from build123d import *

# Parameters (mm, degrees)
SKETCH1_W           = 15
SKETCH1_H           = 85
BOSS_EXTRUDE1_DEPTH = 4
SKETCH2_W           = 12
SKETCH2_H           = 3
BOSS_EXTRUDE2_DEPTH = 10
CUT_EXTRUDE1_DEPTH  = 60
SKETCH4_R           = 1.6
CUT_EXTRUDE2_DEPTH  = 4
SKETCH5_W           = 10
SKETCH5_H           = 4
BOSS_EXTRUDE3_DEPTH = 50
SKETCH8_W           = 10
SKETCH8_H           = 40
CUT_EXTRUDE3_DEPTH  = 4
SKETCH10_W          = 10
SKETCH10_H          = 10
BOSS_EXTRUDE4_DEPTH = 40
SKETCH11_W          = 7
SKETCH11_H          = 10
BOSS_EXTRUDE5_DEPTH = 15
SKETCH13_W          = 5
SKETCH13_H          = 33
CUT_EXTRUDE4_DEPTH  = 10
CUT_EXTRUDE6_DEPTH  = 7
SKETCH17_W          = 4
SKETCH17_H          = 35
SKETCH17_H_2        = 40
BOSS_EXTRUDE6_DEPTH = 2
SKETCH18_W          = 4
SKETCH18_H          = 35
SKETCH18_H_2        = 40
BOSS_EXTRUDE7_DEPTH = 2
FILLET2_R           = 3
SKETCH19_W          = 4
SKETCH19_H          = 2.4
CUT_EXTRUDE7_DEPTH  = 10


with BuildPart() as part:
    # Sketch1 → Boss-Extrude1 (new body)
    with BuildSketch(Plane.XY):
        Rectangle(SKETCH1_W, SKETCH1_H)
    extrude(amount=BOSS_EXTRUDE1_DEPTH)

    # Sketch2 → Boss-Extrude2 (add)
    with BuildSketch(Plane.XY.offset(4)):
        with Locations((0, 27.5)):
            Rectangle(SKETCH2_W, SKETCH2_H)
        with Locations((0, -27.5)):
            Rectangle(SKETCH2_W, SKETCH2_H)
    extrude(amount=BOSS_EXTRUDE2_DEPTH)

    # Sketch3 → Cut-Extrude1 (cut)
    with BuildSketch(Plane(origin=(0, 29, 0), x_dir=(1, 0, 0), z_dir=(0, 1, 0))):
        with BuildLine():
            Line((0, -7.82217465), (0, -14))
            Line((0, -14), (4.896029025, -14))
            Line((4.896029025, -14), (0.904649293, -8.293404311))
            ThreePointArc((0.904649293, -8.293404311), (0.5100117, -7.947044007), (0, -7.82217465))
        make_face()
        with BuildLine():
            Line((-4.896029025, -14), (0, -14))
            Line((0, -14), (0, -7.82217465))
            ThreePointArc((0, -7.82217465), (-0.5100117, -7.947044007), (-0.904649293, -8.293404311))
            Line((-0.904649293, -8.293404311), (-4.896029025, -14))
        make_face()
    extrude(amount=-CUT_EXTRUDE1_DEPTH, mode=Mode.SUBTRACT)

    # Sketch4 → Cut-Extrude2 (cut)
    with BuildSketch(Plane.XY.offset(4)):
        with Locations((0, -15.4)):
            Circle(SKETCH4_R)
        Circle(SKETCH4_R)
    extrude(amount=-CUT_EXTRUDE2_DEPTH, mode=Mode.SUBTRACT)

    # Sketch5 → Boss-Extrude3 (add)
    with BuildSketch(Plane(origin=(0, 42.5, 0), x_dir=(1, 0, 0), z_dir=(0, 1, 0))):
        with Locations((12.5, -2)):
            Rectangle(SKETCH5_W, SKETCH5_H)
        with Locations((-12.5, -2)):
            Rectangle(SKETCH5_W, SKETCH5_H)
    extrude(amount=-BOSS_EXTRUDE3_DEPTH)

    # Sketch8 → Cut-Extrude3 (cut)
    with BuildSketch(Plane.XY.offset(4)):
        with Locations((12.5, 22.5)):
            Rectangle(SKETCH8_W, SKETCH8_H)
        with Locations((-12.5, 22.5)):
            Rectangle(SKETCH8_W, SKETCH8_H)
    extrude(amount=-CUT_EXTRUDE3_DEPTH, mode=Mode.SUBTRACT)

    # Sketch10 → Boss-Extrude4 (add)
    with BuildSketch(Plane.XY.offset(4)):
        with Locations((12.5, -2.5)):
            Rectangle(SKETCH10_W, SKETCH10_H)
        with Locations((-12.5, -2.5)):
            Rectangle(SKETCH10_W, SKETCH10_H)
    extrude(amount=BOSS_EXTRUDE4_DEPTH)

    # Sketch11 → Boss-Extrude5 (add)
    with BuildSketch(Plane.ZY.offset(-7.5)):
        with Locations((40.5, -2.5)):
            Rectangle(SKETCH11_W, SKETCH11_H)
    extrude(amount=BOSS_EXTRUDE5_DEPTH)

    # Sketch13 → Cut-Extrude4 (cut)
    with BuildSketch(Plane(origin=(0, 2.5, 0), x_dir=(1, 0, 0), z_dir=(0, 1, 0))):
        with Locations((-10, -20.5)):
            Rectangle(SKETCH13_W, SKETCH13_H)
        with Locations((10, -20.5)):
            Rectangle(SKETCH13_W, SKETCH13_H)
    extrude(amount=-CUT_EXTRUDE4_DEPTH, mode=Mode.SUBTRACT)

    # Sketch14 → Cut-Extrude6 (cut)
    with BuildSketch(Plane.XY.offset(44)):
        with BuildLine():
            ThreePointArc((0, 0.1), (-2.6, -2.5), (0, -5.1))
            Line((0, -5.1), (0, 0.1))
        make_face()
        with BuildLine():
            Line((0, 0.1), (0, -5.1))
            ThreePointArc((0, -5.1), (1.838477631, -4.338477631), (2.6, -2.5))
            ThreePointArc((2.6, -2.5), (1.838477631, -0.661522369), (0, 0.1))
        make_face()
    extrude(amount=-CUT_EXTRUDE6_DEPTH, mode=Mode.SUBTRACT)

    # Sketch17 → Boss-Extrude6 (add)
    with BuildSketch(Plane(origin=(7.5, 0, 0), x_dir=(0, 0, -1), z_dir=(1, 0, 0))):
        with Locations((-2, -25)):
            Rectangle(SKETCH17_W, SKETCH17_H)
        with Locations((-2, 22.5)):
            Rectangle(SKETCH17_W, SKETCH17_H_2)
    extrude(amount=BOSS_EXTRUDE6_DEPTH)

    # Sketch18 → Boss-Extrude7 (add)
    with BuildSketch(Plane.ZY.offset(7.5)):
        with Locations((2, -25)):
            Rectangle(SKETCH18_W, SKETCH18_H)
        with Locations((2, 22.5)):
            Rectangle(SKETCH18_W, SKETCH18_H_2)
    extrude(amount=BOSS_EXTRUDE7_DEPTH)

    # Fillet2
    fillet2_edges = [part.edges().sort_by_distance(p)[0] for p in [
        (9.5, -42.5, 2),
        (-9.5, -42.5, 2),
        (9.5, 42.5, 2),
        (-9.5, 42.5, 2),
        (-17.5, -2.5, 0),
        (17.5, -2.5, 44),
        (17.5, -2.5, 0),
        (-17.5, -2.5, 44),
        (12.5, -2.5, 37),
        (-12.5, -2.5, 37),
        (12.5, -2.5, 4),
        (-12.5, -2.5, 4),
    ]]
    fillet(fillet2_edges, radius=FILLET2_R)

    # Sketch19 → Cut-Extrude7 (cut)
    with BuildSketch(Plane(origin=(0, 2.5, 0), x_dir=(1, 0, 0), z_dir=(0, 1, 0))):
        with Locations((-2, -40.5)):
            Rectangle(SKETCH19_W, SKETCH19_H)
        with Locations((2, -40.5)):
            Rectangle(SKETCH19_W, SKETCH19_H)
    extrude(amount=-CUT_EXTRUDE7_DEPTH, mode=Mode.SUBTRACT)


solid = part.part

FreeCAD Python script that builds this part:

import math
import FreeCAD as App
import Part
import Sketcher
from FreeCAD import Vector


def edges_at(feature, points):
    """Names of the edges that pass closest to the given points."""
    edges = feature.Shape.Edges
    near = lambda p: min(range(len(edges)), key=lambda i: edges[i].distToShape(Part.Vertex(*p))[0])
    return sorted({f"Edge{near(p) + 1}" for p in points})


def add_polygon(sketch, points):
    """Adds a closed chain of lines whose ends are joined by coincident constraints."""
    first, n = sketch.GeometryCount, len(points)
    for a, b in zip(points, points[1:] + points[:1]):
        sketch.addGeometry(Part.LineSegment(App.Vector(*a, 0), App.Vector(*b, 0)), False)
    for i in range(n):
        sketch.addConstraint(Sketcher.Constraint("Coincident", first + i, 2, first + (i + 1) % n, 1))

doc = App.newDocument("Part")
body = doc.addObject("PartDesign::Body", "Body")

# Sketch on XY plane
sketch1 = doc.addObject("Sketcher::SketchObject", "Sketch")
body.addObject(sketch1)
sketch1.AttachmentSupport = (doc.XY_Plane, [""])
sketch1.MapMode = "FlatFace"
add_polygon(sketch1, [(-8, 42), (-8, -42), (8, -42), (8, 42)])  # lines 0-3
sketch1.addConstraint([
    Sketcher.Constraint("Vertical", 0),
    Sketcher.Constraint("Horizontal", 1),
    Sketcher.Constraint("Vertical", 2),
    Sketcher.Constraint("Horizontal", 3),
    Sketcher.Constraint("Symmetric", 0, 2, 2, 2, -1, 1),
    Sketcher.Constraint("DistanceX", 1, 1, 1, 2, 15.0),
    Sketcher.Constraint("DistanceY", 0, 2, 0, 1, 85.0),
])
pad1 = doc.addObject("PartDesign::Pad", "Pad")
body.addObject(pad1)
pad1.Profile = sketch1
pad1.Length = 4

# Sketch on XY plane
sketch2 = doc.addObject("Sketcher::SketchObject", "Sketch001")
body.addObject(sketch2)
sketch2.AttachmentSupport = (doc.XY_Plane, [""])
sketch2.MapMode = "FlatFace"
sketch2.AttachmentOffset = App.Placement(Vector(0, 0, 4), App.Rotation())
add_polygon(sketch2, [(-6, 29), (-6, 26), (6, 26), (6, 29)])  # lines 0-3
add_polygon(sketch2, [(-6, -26), (-6, -29), (6, -29), (6, -26)])  # lines 4-7
sketch2.addConstraint([
    Sketcher.Constraint("Vertical", 0),
    Sketcher.Constraint("Horizontal", 1),
    Sketcher.Constraint("Vertical", 2),
    Sketcher.Constraint("Horizontal", 3),
    Sketcher.Constraint("Vertical", 4),
    Sketcher.Constraint("Horizontal", 5),
    Sketcher.Constraint("Vertical", 6),
    Sketcher.Constraint("Horizontal", 7),
    Sketcher.Constraint("Symmetric", 2, 2, 4, 2, -1, 1),
    Sketcher.Constraint("Symmetric", 0, 2, 6, 2, -1, 1),
    Sketcher.Constraint("Vertical", 3, 2, 4, 2),
    Sketcher.Constraint("DistanceX", 1, 1, 1, 2, 12.0),
    Sketcher.Constraint("DistanceY", 0, 2, 0, 1, 3.0),
    Sketcher.Constraint("DistanceY", -1, 1, 0, 2, 26.0),
])
pad2 = doc.addObject("PartDesign::Pad", "Pad001")
body.addObject(pad2)
pad2.Profile = sketch2
pad2.Length = 10

# Sketch on XZ plane
sketch3 = doc.addObject("Sketcher::SketchObject", "Sketch002")
body.addObject(sketch3)
sketch3.AttachmentSupport = (doc.XZ_Plane, [""])
sketch3.MapMode = "FlatFace"
sketch3.AttachmentOffset = App.Placement(Vector(0, 0, -29), App.Rotation())
sketch3.addGeometry([
    Part.LineSegment(Vector(4.9, 14, 0), Vector(0.9, 8.3, 0)),  # 0
    Part.ArcOfCircle(Part.Circle(Vector(0, 8.9, 0), Vector(0, 0, 1), 1.1), math.radians(-90), math.radians(-35)),  # 1
    Part.ArcOfCircle(Part.Circle(Vector(0, 8.9, 0), Vector(0, 0, 1), 1.1), math.radians(-145), math.radians(-90)),  # 2
    Part.LineSegment(Vector(-0.9, 8.3, 0), Vector(-4.9, 14, 0)),  # 3
    Part.LineSegment(Vector(-4.9, 14, 0), Vector(4.9, 14, 0)),  # 4
], False)
sketch3.addConstraint([
    Sketcher.Constraint("Tangent", 0, 2, 1, 2),
    Sketcher.Constraint("Tangent", 1, 1, 2, 2),
    Sketcher.Constraint("Tangent", 2, 1, 3, 1),
    Sketcher.Constraint("Coincident", 3, 2, 4, 1),
    Sketcher.Constraint("Coincident", 4, 2, 0, 1),
    Sketcher.Constraint("Horizontal", 4),
    Sketcher.Constraint("Equal", 1, 2),
    Sketcher.Constraint("Symmetric", 0, 2, 2, 1, -2),
    Sketcher.Constraint("PointOnObject", 1, 1, -2),
    Sketcher.Constraint("DistanceY", -1, 1, 3, 2, 14.0),
    Sketcher.Constraint("Radius", 1, 1.103971),
    Sketcher.Constraint("DistanceX", 4, 1, 4, 2, 9.792058),
    Sketcher.Constraint("DistanceX", 2, 1, 0, 2, 1.809299),
])
pocket1 = doc.addObject("PartDesign::Pocket", "Pocket")
body.addObject(pocket1)
pocket1.Profile = sketch3
pocket1.Length = 60
pocket1.Reversed = True

# Sketch on XY plane
sketch4 = doc.addObject("Sketcher::SketchObject", "Sketch003")
body.addObject(sketch4)
sketch4.AttachmentSupport = (doc.XY_Plane, [""])
sketch4.MapMode = "FlatFace"
sketch4.AttachmentOffset = App.Placement(Vector(0, 0, 4), App.Rotation())
sketch4.addGeometry([
    Part.Circle(Vector(0, -15.4, 0), Vector(0, 0, 1), 1.6),
    Part.Circle(Vector(0, 0, 0), Vector(0, 0, 1), 1.6),
], False)
sketch4.addConstraint([
    Sketcher.Constraint("Coincident", 1, 3, -1, 1),
    Sketcher.Constraint("Equal", 0, 1),
    Sketcher.Constraint("PointOnObject", 0, 3, -2),
    Sketcher.Constraint("Diameter", 0, 3.2),
    Sketcher.Constraint("DistanceY", 0, 3, -1, 1, 15.4),
])
pocket2 = doc.addObject("PartDesign::Pocket", "Pocket001")
body.addObject(pocket2)
pocket2.Profile = sketch4
pocket2.Length = 4

# Sketch on XZ plane
sketch5 = doc.addObject("Sketcher::SketchObject", "Sketch004")
body.addObject(sketch5)
sketch5.AttachmentSupport = (doc.XZ_Plane, [""])
sketch5.MapMode = "FlatFace"
sketch5.AttachmentOffset = App.Placement(Vector(0, 0, -42.5), App.Rotation())
add_polygon(sketch5, [(7.5, 0), (7.5, 4), (17.5, 4), (17.5, 0)])  # lines 0-3
add_polygon(sketch5, [(-17.5, 0), (-17.5, 4), (-7.5, 4), (-7.5, 0)])  # lines 4-7
sketch5.addConstraint([
    Sketcher.Constraint("Vertical", 0),
    Sketcher.Constraint("Horizontal", 1),
    Sketcher.Constraint("Vertical", 2),
    Sketcher.Constraint("Horizontal", 3),
    Sketcher.Constraint("Vertical", 4),
    Sketcher.Constraint("Horizontal", 5),
    Sketcher.Constraint("Vertical", 6),
    Sketcher.Constraint("Horizontal", 7),
    Sketcher.Constraint("Symmetric", 3, 2, 6, 2, -1, 1),
    Sketcher.Constraint("Symmetric", 1, 2, 4, 2, -2),
    Sketcher.Constraint("PointOnObject", 2, 2, -1),
    Sketcher.Constraint("DistanceX", 1, 1, 1, 2, 10.0),
    Sketcher.Constraint("DistanceY", 0, 1, 0, 2, 4.0),
    Sketcher.Constraint("DistanceX", 4, 2, 0, 2, 25.0),
])
pad3 = doc.addObject("PartDesign::Pad", "Pad002")
body.addObject(pad3)
pad3.Profile = sketch5
pad3.Length = 50

# Sketch on XY plane
sketch6 = doc.addObject("Sketcher::SketchObject", "Sketch005")
body.addObject(sketch6)
sketch6.AttachmentSupport = (doc.XY_Plane, [""])
sketch6.MapMode = "FlatFace"
sketch6.AttachmentOffset = App.Placement(Vector(0, 0, 4), App.Rotation())
add_polygon(sketch6, [(8, 42), (8, 2), (18, 2), (18, 42)])  # lines 0-3
add_polygon(sketch6, [(-18, 42), (-18, 2), (-8, 2), (-8, 42)])  # lines 4-7
sketch6.addConstraint([
    Sketcher.Constraint("Vertical", 0),
    Sketcher.Constraint("Horizontal", 1),
    Sketcher.Constraint("Vertical", 2),
    Sketcher.Constraint("Horizontal", 3),
    Sketcher.Constraint("Vertical", 4),
    Sketcher.Constraint("Horizontal", 5),
    Sketcher.Constraint("Vertical", 6),
    Sketcher.Constraint("Horizontal", 7),
    Sketcher.Constraint("Symmetric", 1, 2, 4, 2, -2),
    Sketcher.Constraint("Symmetric", 3, 2, 6, 2, -2),
    Sketcher.Constraint("DistanceX", 1, 1, 1, 2, 10.0),
    Sketcher.Constraint("DistanceY", 0, 2, 0, 1, 40.0),
    Sketcher.Constraint("DistanceX", 4, 2, 0, 2, 25.0),
    Sketcher.Constraint("DistanceY", -1, 1, 0, 2, 2.5),
])
pocket3 = doc.addObject("PartDesign::Pocket", "Pocket002")
body.addObject(pocket3)
pocket3.Profile = sketch6
pocket3.Length = 4

# Sketch on XY plane
sketch7 = doc.addObject("Sketcher::SketchObject", "Sketch006")
body.addObject(sketch7)
sketch7.AttachmentSupport = (doc.XY_Plane, [""])
sketch7.MapMode = "FlatFace"
sketch7.AttachmentOffset = App.Placement(Vector(0, 0, 4), App.Rotation())
add_polygon(sketch7, [(8, 2), (8, -8), (18, -8), (18, 2)])  # lines 0-3
add_polygon(sketch7, [(-18, 2), (-18, -8), (-8, -8), (-8, 2)])  # lines 4-7
sketch7.addConstraint([
    Sketcher.Constraint("Vertical", 0),
    Sketcher.Constraint("Horizontal", 1),
    Sketcher.Constraint("Vertical", 2),
    Sketcher.Constraint("Horizontal", 3),
    Sketcher.Constraint("Vertical", 4),
    Sketcher.Constraint("Horizontal", 5),
    Sketcher.Constraint("Vertical", 6),
    Sketcher.Constraint("Horizontal", 7),
    Sketcher.Constraint("Symmetric", 1, 2, 4, 2, -2),
    Sketcher.Constraint("Symmetric", 3, 2, 6, 2, -2),
    Sketcher.Constraint("Equal", 7, 0),
    Sketcher.Constraint("DistanceX", 1, 1, 1, 2, 10.0),
    Sketcher.Constraint("DistanceX", 4, 2, 0, 2, 25.0),
    Sketcher.Constraint("DistanceY", 0, 2, -1, 1, 7.5),
])
pad4 = doc.addObject("PartDesign::Pad", "Pad003")
body.addObject(pad4)
pad4.Profile = sketch7
pad4.Length = 40

# Sketch on YZ plane
sketch8 = doc.addObject("Sketcher::SketchObject", "Sketch007")
body.addObject(sketch8)
sketch8.AttachmentSupport = (doc.YZ_Plane, [""])
sketch8.MapMode = "FlatFace"
sketch8.AttachmentOffset = App.Placement(Vector(0, 0, 7.5), App.Rotation())
add_polygon(sketch8, [(2, 37), (-8, 37), (-8, 44), (2, 44)])  # lines 0-3
sketch8.addConstraint([
    Sketcher.Constraint("Horizontal", 0),
    Sketcher.Constraint("Vertical", 1),
    Sketcher.Constraint("Horizontal", 2),
    Sketcher.Constraint("Vertical", 3),
    Sketcher.Constraint("DistanceX", 0, 2, 0, 1, 10.0),
    Sketcher.Constraint("DistanceY", 1, 1, 1, 2, 7.0),
    Sketcher.Constraint("DistanceY", -1, 1, 0, 2, 37.0),
    Sketcher.Constraint("DistanceX", 0, 2, -1, 1, 7.5),
])
pad5 = doc.addObject("PartDesign::Pad", "Pad004")
body.addObject(pad5)
pad5.Profile = sketch8
pad5.Length = 15
pad5.Reversed = True

# Sketch on XZ plane
sketch9 = doc.addObject("Sketcher::SketchObject", "Sketch008")
body.addObject(sketch9)
sketch9.AttachmentSupport = (doc.XZ_Plane, [""])
sketch9.MapMode = "FlatFace"
sketch9.AttachmentOffset = App.Placement(Vector(0, 0, -2.5), App.Rotation())
add_polygon(sketch9, [(-12, 4), (-12, 37), (-8, 37), (-8, 4)])  # lines 0-3
add_polygon(sketch9, [(8, 4), (8, 37), (12, 37), (12, 4)])  # lines 4-7
sketch9.addConstraint([
    Sketcher.Constraint("Vertical", 0),
    Sketcher.Constraint("Horizontal", 1),
    Sketcher.Constraint("Vertical", 2),
    Sketcher.Constraint("Horizontal", 3),
    Sketcher.Constraint("Vertical", 4),
    Sketcher.Constraint("Horizontal", 5),
    Sketcher.Constraint("Vertical", 6),
    Sketcher.Constraint("Horizontal", 7),
    Sketcher.Constraint("Symmetric", 1, 2, 4, 2, -2),
    Sketcher.Constraint("Symmetric", 3, 2, 6, 2, -2),
    Sketcher.Constraint("DistanceX", 1, 1, 1, 2, 5.0),
    Sketcher.Constraint("DistanceY", 0, 1, 0, 2, 33.0),
    Sketcher.Constraint("DistanceY", -1, 1, 0, 2, 37.0),
    Sketcher.Constraint("DistanceX", 1, 2, 4, 2, 15.0),
])
pocket4 = doc.addObject("PartDesign::Pocket", "Pocket003")
body.addObject(pocket4)
pocket4.Profile = sketch9
pocket4.Length = 10
pocket4.Reversed = True

# Sketch on XY plane
sketch10 = doc.addObject("Sketcher::SketchObject", "Sketch009")
body.addObject(sketch10)
sketch10.AttachmentSupport = (doc.XY_Plane, [""])
sketch10.MapMode = "FlatFace"
sketch10.AttachmentOffset = App.Placement(Vector(0, 0, 44), App.Rotation())
sketch10.addGeometry([
    Part.ArcOfCircle(Part.Circle(Vector(0, -2.5, 0), Vector(0, 0, 1), 2.6), math.radians(90), math.radians(270)),
    Part.ArcOfCircle(Part.Circle(Vector(0, -2.5, 0), Vector(0, 0, 1), 2.6), math.radians(-90), math.radians(0)),
    Part.ArcOfCircle(Part.Circle(Vector(0, -2.5, 0), Vector(0, 0, 1), 2.6), math.radians(0), math.radians(90)),
], False)
sketch10.addConstraint([
    Sketcher.Constraint("Tangent", 0, 2, 1, 1),
    Sketcher.Constraint("Tangent", 1, 2, 2, 1),
    Sketcher.Constraint("Tangent", 2, 2, 0, 1),
    Sketcher.Constraint("PointOnObject", 0, 3, -2),
    Sketcher.Constraint("PointOnObject", 0, 2, -2),
    Sketcher.Constraint("PointOnObject", 2, 2, -2),
    Sketcher.Constraint("Horizontal", 2, 3, 1, 2),
    Sketcher.Constraint("Radius", 0, 2.6),
    Sketcher.Constraint("DistanceY", 0, 3, -1, 1, 2.5),
])
pocket5 = doc.addObject("PartDesign::Pocket", "Pocket004")
body.addObject(pocket5)
pocket5.Profile = sketch10
pocket5.Length = 7

# Sketch on YZ plane
sketch11 = doc.addObject("Sketcher::SketchObject", "Sketch010")
body.addObject(sketch11)
sketch11.AttachmentSupport = (doc.YZ_Plane, [""])
sketch11.MapMode = "FlatFace"
sketch11.AttachmentOffset = App.Placement(Vector(0, 0, 7.5), App.Rotation())
add_polygon(sketch11, [(-7.5, 4), (-42.5, 4), (-42.5, 0), (-7.5, 0)])  # lines 0-3
add_polygon(sketch11, [(42.5, 4), (2.5, 4), (2.5, 0), (42.5, 0)])  # lines 4-7
sketch11.addConstraint([
    Sketcher.Constraint("Horizontal", 0),
    Sketcher.Constraint("Vertical", 1),
    Sketcher.Constraint("Horizontal", 2),
    Sketcher.Constraint("Vertical", 3),
    Sketcher.Constraint("Horizontal", 4),
    Sketcher.Constraint("Vertical", 5),
    Sketcher.Constraint("Horizontal", 6),
    Sketcher.Constraint("Vertical", 7),
    Sketcher.Constraint("Symmetric", 1, 2, 6, 2, -1, 1),
    Sketcher.Constraint("PointOnObject", 1, 2, -1),
    Sketcher.Constraint("Horizontal", 3, 2, 4, 2),
    Sketcher.Constraint("DistanceX", 0, 2, 0, 1, 35.0),
    Sketcher.Constraint("DistanceX", 4, 2, 4, 1, 40.0),
    Sketcher.Constraint("DistanceY", 1, 2, 1, 1, 4.0),
    Sketcher.Constraint("DistanceX", 3, 2, 4, 2, 10.0),
])
pad6 = doc.addObject("PartDesign::Pad", "Pad005")
body.addObject(pad6)
pad6.Profile = sketch11
pad6.Length = 2

# Sketch on YZ plane
sketch12 = doc.addObject("Sketcher::SketchObject", "Sketch011")
body.addObject(sketch12)
sketch12.AttachmentSupport = (doc.YZ_Plane, [""])
sketch12.MapMode = "FlatFace"
sketch12.AttachmentOffset = App.Placement(Vector(0, 0, -7.5), App.Rotation())
add_polygon(sketch12, [(-7.5, 0), (-42.5, 0), (-42.5, 4), (-7.5, 4)])  # lines 0-3
add_polygon(sketch12, [(42.5, 0), (2.5, 0), (2.5, 4), (42.5, 4)])  # lines 4-7
sketch12.addConstraint([
    Sketcher.Constraint("Horizontal", 0),
    Sketcher.Constraint("Vertical", 1),
    Sketcher.Constraint("Horizontal", 2),
    Sketcher.Constraint("Vertical", 3),
    Sketcher.Constraint("Horizontal", 4),
    Sketcher.Constraint("Vertical", 5),
    Sketcher.Constraint("Horizontal", 6),
    Sketcher.Constraint("Vertical", 7),
    Sketcher.Constraint("Symmetric", 0, 2, 7, 2, -1, 1),
    Sketcher.Constraint("PointOnObject", 0, 2, -1),
    Sketcher.Constraint("Horizontal", 2, 2, 5, 2),
    Sketcher.Constraint("DistanceX", 0, 2, 0, 1, 35.0),
    Sketcher.Constraint("DistanceX", 4, 2, 4, 1, 40.0),
    Sketcher.Constraint("DistanceY", 1, 1, 1, 2, 4.0),
    Sketcher.Constraint("DistanceX", 3, 2, 4, 2, 10.0),
])
pad7 = doc.addObject("PartDesign::Pad", "Pad006")
body.addObject(pad7)
pad7.Profile = sketch12
pad7.Length = 2
pad7.Reversed = True
doc.recompute()

fillet = doc.addObject("PartDesign::Fillet", "Fillet")
body.addObject(fillet)
fillet.Base = (pad7, edges_at(pad7, [
    (9.5, -42.5, 2),
    (-9.5, -42.5, 2),
    (9.5, 42.5, 2),
    (-9.5, 42.5, 2),
    (-17.5, -2.5, 0),
    (17.5, -2.5, 44),
    (17.5, -2.5, 0),
    (-17.5, -2.5, 44),
    (12.5, -2.5, 37),
    (-12.5, -2.5, 37),
    (12.5, -2.5, 4),
    (-12.5, -2.5, 4),
]))
fillet.Radius = 3

# Sketch on XZ plane
sketch13 = doc.addObject("Sketcher::SketchObject", "Sketch012")
body.addObject(sketch13)
sketch13.AttachmentSupport = (doc.XZ_Plane, [""])
sketch13.MapMode = "FlatFace"
sketch13.AttachmentOffset = App.Placement(Vector(0, 0, -2.5), App.Rotation())
add_polygon(sketch13, [(-4, 39.3), (-4, 41.7), (4, 41.7), (4, 39.3)])  # lines 0-3
sketch13.addConstraint([
    Sketcher.Constraint("Vertical", 0),
    Sketcher.Constraint("Horizontal", 1),
    Sketcher.Constraint("Vertical", 2),
    Sketcher.Constraint("Horizontal", 3),
    Sketcher.Constraint("DistanceX", 1, 1, 1, 2, 8.0),
    Sketcher.Constraint("DistanceY", 0, 1, 0, 2, 2.4),
    Sketcher.Constraint("DistanceX", 0, 2, -1, 1, 4.0),
    Sketcher.Constraint("DistanceY", -1, 1, 0, 2, 41.7),
])
pocket6 = doc.addObject("PartDesign::Pocket", "Pocket005")
body.addObject(pocket6)
pocket6.Profile = sketch13
pocket6.Length = 10
pocket6.Reversed = True

doc.recompute()
